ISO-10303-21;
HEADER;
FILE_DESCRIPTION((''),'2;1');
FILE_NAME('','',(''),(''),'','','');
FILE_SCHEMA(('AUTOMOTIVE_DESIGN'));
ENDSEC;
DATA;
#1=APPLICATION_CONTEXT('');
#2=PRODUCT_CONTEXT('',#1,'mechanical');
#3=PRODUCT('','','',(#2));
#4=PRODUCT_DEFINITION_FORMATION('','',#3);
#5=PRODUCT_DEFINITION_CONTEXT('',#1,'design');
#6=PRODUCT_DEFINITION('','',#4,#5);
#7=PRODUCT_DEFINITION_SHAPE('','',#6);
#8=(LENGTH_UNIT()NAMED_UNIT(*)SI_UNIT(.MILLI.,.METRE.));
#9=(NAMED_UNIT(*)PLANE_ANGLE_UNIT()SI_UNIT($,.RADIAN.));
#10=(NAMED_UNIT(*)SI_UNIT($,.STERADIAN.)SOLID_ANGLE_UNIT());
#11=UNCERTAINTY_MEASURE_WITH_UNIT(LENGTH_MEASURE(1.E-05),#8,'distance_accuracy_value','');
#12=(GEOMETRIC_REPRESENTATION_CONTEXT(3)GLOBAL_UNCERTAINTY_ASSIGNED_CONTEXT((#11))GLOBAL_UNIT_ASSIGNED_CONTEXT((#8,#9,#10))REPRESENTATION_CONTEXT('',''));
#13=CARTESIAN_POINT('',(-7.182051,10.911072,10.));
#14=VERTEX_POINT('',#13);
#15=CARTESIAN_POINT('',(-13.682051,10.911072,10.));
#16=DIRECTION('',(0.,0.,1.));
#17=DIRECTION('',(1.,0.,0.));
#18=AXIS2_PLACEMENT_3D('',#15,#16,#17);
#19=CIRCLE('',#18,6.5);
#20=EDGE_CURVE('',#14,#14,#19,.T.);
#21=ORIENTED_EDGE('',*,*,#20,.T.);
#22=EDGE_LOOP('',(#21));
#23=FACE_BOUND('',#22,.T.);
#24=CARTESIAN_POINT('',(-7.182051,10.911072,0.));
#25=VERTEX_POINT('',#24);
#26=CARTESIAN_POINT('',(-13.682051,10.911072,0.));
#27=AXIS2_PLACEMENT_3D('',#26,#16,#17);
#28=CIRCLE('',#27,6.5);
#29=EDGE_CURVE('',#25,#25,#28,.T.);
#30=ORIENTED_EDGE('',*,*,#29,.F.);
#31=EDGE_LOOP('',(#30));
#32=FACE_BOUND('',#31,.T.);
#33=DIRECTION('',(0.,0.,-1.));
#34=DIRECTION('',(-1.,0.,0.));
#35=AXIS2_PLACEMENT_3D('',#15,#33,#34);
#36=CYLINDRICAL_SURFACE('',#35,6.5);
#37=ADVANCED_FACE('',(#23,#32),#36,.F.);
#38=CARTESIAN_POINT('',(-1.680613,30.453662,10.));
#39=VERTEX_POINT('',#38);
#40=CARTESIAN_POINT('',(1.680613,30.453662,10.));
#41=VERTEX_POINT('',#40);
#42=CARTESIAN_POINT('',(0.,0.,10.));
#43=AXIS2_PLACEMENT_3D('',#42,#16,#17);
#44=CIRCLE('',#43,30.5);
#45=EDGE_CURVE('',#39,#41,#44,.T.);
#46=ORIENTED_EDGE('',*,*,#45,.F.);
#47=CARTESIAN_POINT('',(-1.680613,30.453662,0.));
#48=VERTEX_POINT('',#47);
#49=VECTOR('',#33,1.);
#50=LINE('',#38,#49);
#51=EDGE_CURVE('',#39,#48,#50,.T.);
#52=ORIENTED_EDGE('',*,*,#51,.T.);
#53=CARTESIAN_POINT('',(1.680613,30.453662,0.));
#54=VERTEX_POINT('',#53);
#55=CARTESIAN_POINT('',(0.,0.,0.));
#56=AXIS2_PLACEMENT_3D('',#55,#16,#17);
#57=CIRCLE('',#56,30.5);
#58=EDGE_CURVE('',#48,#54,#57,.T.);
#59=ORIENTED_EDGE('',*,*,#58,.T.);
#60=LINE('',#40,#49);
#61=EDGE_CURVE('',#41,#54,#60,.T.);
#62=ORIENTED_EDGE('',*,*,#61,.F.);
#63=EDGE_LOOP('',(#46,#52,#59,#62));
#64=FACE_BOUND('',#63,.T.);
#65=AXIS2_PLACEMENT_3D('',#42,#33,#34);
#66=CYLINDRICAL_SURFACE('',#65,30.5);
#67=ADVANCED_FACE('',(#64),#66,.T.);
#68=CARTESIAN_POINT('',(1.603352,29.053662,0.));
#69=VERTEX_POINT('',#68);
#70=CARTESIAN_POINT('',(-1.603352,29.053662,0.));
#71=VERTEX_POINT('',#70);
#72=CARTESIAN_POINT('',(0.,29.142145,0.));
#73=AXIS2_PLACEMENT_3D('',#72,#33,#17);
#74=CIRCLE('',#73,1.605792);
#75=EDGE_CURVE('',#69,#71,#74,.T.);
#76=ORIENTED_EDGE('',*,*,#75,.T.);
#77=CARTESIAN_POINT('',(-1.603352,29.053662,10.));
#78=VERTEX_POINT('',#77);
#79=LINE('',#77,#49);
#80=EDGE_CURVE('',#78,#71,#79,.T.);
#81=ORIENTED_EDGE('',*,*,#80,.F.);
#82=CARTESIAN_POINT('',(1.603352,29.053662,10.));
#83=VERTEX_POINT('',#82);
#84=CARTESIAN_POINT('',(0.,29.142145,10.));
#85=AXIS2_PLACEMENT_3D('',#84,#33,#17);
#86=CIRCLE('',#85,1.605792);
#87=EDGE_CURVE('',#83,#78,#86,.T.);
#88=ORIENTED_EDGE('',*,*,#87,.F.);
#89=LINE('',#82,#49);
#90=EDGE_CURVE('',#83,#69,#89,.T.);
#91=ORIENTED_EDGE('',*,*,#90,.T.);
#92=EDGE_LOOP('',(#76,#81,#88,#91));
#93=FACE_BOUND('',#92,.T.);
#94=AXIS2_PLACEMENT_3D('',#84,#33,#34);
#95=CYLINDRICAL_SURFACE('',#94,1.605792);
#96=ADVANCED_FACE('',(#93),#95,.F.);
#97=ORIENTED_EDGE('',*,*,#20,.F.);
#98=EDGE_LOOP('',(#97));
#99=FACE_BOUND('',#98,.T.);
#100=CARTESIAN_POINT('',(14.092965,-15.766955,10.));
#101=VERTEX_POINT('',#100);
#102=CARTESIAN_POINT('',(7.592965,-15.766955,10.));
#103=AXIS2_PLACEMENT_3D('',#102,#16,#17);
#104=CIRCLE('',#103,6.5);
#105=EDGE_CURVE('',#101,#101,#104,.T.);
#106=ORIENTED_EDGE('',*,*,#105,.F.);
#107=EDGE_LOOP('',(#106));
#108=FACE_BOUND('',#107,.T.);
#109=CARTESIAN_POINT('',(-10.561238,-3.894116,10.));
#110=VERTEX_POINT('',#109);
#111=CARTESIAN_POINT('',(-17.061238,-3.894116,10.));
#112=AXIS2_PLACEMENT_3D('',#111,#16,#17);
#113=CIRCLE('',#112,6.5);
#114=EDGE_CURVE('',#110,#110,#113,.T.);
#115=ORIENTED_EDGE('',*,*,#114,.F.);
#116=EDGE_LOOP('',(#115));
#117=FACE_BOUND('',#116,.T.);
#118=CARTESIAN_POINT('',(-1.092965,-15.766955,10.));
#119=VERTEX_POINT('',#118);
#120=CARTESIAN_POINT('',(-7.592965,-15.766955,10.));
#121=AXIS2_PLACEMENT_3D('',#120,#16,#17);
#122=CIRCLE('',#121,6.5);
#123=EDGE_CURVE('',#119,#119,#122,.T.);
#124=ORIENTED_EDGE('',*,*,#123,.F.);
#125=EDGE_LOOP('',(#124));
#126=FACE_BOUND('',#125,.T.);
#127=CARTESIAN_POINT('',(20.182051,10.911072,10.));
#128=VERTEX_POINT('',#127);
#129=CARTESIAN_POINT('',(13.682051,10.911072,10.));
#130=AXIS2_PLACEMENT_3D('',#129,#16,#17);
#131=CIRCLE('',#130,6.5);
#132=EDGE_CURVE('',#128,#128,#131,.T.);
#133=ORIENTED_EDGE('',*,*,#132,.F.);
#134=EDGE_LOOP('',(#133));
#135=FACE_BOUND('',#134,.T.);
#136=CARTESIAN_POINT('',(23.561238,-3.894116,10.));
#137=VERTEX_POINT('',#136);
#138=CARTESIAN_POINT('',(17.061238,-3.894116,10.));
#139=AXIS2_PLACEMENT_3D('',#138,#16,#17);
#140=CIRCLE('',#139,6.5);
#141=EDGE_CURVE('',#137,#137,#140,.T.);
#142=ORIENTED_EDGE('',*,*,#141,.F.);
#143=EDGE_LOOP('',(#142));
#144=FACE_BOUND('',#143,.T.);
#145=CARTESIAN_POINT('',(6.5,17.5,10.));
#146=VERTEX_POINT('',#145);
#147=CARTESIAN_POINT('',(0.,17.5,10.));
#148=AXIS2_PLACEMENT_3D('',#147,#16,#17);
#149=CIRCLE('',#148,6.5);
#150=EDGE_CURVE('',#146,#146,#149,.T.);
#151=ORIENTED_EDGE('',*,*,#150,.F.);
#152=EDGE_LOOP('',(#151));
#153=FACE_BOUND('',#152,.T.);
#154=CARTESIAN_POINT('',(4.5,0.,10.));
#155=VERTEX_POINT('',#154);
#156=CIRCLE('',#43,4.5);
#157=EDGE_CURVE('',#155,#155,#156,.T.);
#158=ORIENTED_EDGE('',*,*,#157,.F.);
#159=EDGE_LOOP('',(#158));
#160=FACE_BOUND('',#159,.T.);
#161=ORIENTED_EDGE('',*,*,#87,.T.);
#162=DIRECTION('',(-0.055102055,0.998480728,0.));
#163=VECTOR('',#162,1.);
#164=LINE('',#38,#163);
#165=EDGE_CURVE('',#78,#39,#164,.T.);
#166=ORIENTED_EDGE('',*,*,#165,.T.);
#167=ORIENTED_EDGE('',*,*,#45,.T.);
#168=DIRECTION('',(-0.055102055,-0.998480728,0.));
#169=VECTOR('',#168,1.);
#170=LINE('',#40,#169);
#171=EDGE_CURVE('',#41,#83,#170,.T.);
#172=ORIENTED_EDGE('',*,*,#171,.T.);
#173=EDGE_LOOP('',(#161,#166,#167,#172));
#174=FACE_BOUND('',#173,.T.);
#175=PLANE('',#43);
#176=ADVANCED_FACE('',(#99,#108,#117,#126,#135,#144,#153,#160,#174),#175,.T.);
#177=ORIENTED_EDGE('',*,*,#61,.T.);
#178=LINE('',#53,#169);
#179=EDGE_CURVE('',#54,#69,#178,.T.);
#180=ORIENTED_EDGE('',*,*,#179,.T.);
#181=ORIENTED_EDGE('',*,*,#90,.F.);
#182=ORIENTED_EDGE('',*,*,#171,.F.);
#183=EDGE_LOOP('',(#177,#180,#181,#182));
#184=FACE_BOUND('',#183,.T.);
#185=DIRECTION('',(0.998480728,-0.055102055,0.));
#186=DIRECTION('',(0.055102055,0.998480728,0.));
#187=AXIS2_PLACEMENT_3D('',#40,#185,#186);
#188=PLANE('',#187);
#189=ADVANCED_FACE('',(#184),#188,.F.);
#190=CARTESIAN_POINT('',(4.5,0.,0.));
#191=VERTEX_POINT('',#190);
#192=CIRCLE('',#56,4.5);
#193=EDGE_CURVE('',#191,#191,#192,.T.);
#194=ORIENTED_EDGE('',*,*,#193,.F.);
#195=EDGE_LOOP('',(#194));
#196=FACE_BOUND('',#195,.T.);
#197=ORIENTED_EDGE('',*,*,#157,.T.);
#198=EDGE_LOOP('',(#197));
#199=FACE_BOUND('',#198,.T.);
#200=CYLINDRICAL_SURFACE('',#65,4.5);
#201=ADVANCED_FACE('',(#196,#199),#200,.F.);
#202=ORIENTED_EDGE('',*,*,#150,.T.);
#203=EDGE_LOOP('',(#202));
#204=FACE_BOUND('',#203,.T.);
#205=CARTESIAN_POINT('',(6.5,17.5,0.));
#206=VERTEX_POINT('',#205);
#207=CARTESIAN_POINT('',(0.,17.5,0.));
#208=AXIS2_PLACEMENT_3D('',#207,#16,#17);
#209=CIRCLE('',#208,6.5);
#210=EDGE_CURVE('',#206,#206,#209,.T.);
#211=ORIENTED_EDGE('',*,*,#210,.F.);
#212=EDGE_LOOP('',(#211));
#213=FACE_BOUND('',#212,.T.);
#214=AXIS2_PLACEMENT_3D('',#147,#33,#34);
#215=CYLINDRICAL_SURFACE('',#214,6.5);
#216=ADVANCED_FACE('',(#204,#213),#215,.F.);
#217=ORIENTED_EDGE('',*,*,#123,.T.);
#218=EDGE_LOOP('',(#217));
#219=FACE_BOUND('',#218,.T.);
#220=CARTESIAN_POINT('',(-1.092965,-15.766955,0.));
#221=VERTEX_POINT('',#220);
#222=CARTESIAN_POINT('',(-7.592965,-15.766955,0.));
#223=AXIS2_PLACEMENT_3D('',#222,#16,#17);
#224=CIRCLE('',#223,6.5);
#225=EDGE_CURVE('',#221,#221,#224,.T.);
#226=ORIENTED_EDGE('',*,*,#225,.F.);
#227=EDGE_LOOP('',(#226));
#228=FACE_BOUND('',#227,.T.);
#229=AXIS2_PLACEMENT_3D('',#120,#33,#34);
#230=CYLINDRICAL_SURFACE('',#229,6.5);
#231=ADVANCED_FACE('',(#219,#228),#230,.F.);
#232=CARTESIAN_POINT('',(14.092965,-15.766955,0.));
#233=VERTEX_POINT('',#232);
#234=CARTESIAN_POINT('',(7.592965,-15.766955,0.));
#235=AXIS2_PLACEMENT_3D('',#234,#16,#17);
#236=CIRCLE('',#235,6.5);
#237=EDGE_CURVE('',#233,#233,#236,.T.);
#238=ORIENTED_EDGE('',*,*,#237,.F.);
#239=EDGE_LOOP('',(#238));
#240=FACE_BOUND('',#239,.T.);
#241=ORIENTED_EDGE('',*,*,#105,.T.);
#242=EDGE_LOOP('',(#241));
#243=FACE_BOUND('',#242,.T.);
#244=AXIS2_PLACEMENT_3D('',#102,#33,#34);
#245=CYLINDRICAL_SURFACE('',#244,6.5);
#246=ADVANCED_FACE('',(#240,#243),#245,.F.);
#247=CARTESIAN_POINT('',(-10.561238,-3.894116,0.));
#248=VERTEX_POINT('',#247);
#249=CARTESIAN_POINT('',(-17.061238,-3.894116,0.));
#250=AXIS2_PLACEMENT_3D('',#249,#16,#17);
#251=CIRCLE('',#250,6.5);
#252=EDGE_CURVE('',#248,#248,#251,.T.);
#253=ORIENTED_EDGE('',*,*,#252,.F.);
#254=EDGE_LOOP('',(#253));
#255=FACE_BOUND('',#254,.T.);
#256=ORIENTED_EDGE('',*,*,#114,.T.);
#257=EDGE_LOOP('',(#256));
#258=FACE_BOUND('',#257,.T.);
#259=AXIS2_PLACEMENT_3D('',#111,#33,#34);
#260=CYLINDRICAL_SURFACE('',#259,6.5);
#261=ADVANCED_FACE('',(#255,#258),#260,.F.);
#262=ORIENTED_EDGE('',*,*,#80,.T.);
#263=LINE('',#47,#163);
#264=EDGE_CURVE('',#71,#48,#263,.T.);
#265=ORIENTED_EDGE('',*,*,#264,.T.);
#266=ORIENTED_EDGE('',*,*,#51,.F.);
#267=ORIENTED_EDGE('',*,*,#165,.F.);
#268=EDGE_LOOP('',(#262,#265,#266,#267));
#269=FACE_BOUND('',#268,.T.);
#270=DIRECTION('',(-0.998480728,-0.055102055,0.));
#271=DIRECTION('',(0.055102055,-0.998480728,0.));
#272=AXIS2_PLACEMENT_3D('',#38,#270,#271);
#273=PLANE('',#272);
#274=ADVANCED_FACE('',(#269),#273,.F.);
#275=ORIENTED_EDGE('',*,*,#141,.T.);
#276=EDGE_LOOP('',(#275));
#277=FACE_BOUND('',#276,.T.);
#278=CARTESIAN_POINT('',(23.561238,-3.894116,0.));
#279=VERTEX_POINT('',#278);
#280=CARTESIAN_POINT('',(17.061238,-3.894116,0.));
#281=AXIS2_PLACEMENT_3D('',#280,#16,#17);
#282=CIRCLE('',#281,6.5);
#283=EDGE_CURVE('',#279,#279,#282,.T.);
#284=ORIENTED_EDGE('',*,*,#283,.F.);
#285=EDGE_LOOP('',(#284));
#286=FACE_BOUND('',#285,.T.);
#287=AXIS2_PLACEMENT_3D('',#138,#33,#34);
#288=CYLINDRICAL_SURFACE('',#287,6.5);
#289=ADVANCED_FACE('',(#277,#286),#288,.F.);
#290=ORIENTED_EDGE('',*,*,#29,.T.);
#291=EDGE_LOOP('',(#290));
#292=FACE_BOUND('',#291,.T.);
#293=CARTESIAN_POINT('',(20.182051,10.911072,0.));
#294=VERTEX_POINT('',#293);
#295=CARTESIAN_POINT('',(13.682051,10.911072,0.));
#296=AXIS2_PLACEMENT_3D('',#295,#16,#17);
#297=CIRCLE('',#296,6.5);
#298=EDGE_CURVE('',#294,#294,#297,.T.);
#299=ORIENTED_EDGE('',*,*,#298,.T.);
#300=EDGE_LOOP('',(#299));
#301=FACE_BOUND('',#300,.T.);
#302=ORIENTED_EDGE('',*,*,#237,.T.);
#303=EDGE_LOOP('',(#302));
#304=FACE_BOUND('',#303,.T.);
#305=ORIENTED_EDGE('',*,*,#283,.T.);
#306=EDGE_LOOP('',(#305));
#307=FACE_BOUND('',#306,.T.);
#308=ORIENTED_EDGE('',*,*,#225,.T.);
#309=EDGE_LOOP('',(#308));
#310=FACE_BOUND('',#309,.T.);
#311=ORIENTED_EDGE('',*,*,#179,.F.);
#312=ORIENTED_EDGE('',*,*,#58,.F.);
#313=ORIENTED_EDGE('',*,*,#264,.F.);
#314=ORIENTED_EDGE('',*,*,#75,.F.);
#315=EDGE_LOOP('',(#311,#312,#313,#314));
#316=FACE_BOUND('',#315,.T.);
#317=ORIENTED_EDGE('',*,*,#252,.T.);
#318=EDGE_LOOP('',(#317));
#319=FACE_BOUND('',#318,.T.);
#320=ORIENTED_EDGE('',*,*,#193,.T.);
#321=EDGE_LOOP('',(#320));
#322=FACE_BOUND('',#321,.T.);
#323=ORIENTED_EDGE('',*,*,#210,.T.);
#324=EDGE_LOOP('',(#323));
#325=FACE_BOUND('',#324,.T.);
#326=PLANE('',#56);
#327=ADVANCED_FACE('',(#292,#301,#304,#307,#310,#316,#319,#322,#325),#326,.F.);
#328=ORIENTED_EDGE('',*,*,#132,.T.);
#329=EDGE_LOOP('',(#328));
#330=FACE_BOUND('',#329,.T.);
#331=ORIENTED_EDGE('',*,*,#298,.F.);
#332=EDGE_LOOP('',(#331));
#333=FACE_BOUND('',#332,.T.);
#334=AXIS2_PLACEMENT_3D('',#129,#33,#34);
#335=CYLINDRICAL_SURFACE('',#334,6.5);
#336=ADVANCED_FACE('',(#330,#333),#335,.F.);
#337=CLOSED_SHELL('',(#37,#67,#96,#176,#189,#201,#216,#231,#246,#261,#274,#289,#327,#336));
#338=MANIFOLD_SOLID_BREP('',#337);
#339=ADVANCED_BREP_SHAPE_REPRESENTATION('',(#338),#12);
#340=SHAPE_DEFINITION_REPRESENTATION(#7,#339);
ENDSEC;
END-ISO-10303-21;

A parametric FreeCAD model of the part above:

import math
import FreeCAD as App
import Part
import Sketcher
Q = App.Units.Quantity

doc = App.newDocument("Part")
body = doc.addObject("PartDesign::Body", "Body")

sketch1 = body.newObject("Sketcher::SketchObject", "Sketch")
sketch1.AttachmentSupport = (doc.getObject("XY_Plane"), [""])
sketch1.MapMode = "FlatFace"
sketch1.addGeometry([
    Part.LineSegment(App.Vector(1.7, 30.5, 0), App.Vector(1.6, 29.1, 0)),
    Part.ArcOfCircle(Part.Circle(App.Vector(0, 29.1, 0), App.Vector(0, 0, 1), 1.6), math.radians(-177), math.radians(-3)),
    Part.LineSegment(App.Vector(-1.6, 29.1, 0), App.Vector(-1.7, 30.5, 0)),
    Part.ArcOfCircle(Part.Circle(App.Vector(0, 0, 0), App.Vector(0, 0, 1), 30.5), math.radians(93), math.radians(447)),
    Part.Circle(App.Vector(-7.6, -15.8, 0), App.Vector(0, 0, 1), 6.5),
    Part.Circle(App.Vector(-17.1, -3.9, 0), App.Vector(0, 0, 1), 6.5),
    Part.Circle(App.Vector(7.6, -15.8, 0), App.Vector(0, 0, 1), 6.5),
    Part.Circle(App.Vector(0, 0, 0), App.Vector(0, 0, 1), 4.5),
    Part.Circle(App.Vector(17.1, -3.9, 0), App.Vector(0, 0, 1), 6.5),
    Part.Circle(App.Vector(-13.7, 10.9, 0), App.Vector(0, 0, 1), 6.5),
    Part.Circle(App.Vector(13.7, 10.9, 0), App.Vector(0, 0, 1), 6.5),
    Part.Circle(App.Vector(0, 17.5, 0), App.Vector(0, 0, 1), 6.5),
], False)
sketch1.addConstraint([
    Sketcher.Constraint("Tangent", 0, 2, 1, 2),
    Sketcher.Constraint("Tangent", 1, 1, 2, 1),
    Sketcher.Constraint("Coincident", 2, 2, 3, 1),
    Sketcher.Constraint("Coincident", 3, 2, 0, 1),
    Sketcher.Constraint("Coincident", 3, 3, -1, 1),
    Sketcher.Constraint("Coincident", 7, 3, -1, 1),
    Sketcher.Constraint("Equal", 4, 5),
    Sketcher.Constraint("Equal", 5, 6),
    Sketcher.Constraint("Equal", 6, 8),
    Sketcher.Constraint("Equal", 8, 9),
    Sketcher.Constraint("Equal", 9, 10),
    Sketcher.Constraint("Equal", 10, 11),
    Sketcher.Constraint("Symmetric", 4, 3, 6, 3, -2),
    Sketcher.Constraint("Symmetric", 5, 3, 8, 3, -2),
    Sketcher.Constraint("Symmetric", 9, 3, 10, 3, -2),
    Sketcher.Constraint("Symmetric", 0, 2, 1, 1, -2),
    Sketcher.Constraint("PointOnObject", 11, 3, -2),
    Sketcher.Constraint("Diameter", 4, Q("13 mm")),
    Sketcher.Constraint("Diameter", 7, Q("9 mm")),
    Sketcher.Constraint("Radius", 3, Q("30.5 mm")),
    Sketcher.Constraint("DistanceY", -1, 1, 11, 3, Q("17.5 mm")),
    Sketcher.Constraint("DistanceY", 1, 1, 2, 2, Q("1.4 mm")),
    Sketcher.Constraint("Radius", 1, Q("1.605792 mm")),
    Sketcher.Constraint("DistanceY", 4, 3, 1, 3, Q("44.9091 mm")),
    Sketcher.Constraint("DistanceX", 9, 3, 10, 3, Q("27.364102 mm")),
    Sketcher.Constraint("DistanceX", 0, 2, 10, 3, Q("12.078699 mm")),
    Sketcher.Constraint("DistanceX", 5, 3, -1, 1, Q("17.061238 mm")),
    Sketcher.Constraint("DistanceY", -1, 1, 9, 3, Q("10.911072 mm")),
    Sketcher.Constraint("DistanceY", 4, 3, 5, 3, Q("11.872839 mm")),
    Sketcher.Constraint("DistanceX", 4, 3, 6, 3, Q("15.185931 mm")),
])
pad1 = body.newObject("PartDesign::Pad", "Pad")
pad1.Profile = sketch1
pad1.Length = 10

doc.recompute()
